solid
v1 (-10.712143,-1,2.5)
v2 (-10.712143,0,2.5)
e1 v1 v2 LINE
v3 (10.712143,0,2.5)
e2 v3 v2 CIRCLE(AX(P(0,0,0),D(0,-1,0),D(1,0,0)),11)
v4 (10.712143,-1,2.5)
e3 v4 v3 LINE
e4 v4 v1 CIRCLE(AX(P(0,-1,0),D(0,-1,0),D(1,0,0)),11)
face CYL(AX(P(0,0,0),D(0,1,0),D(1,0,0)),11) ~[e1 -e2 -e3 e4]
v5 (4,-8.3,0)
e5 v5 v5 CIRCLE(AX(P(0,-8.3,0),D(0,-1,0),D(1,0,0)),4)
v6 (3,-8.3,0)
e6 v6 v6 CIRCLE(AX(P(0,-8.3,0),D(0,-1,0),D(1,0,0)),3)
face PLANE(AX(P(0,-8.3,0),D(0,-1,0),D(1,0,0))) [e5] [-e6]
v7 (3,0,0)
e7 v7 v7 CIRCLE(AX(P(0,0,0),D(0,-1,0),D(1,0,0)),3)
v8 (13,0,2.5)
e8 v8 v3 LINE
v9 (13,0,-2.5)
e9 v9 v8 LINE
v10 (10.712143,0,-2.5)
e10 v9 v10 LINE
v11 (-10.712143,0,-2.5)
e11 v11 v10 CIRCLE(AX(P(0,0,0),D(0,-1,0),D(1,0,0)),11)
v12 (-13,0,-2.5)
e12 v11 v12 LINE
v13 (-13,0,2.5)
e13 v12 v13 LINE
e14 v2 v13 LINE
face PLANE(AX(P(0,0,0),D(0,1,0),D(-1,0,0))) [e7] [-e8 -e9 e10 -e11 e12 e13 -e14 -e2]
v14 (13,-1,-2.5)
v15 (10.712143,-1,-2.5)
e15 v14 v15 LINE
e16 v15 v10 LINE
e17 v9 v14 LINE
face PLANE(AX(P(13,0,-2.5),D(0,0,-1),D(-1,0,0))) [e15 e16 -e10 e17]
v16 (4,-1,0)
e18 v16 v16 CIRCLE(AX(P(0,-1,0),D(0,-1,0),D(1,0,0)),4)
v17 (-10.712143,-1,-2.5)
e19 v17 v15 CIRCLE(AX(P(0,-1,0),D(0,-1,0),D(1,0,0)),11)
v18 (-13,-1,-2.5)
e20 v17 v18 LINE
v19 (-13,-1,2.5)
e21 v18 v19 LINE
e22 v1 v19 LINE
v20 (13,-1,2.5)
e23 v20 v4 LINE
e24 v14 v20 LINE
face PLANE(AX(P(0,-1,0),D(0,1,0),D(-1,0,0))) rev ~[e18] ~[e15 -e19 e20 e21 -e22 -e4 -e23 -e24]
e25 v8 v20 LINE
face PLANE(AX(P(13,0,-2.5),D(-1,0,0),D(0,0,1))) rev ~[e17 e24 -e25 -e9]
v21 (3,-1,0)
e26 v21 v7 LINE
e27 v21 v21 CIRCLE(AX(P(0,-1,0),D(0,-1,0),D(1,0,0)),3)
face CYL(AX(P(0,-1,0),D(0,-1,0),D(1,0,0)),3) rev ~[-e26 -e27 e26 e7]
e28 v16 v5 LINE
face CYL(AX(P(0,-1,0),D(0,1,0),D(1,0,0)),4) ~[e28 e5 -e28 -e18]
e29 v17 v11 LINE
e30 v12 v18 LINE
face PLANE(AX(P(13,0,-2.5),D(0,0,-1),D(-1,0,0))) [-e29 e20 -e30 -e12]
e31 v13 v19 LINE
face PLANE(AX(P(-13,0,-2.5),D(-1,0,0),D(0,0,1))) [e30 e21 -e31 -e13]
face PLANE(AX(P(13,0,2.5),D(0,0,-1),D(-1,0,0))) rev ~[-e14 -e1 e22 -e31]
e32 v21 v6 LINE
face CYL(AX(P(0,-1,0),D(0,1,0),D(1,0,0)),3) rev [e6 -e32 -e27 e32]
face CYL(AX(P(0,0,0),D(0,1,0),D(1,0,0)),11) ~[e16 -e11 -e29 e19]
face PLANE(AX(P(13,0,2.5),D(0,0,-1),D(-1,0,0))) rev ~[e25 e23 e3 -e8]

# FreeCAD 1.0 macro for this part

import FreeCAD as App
import Part
import Sketcher
Q = App.Units.Quantity


def add_polygon(sketch, points):
    """Adds a closed chain of lines whose ends are joined by coincident constraints."""
    first, n = sketch.GeometryCount, len(points)
    for a, b in zip(points, points[1:] + points[:1]):
        sketch.addGeometry(Part.LineSegment(App.Vector(*a, 0), App.Vector(*b, 0)), False)
    for i in range(n):
        sketch.addConstraint(Sketcher.Constraint("Coincident", first + i, 2, first + (i + 1) % n, 1))

doc = App.newDocument("Part")
body = doc.addObject("PartDesign::Body", "Body")

# Sketch on XZ plane
sketch1 = doc.addObject("Sketcher::SketchObject", "Sketch")
body.addObject(sketch1)
sketch1.AttachmentSupport = (doc.XZ_Plane, [""])
sketch1.MapMode = "FlatFace"
sketch1.addGeometry(Part.Circle(App.Vector(0, 0, 0), App.Vector(0, 0, 1), 11), False)
sketch1.addConstraint([
    Sketcher.Constraint("Coincident", 0, 3, -1, 1),
    Sketcher.Constraint("Diameter", 0, Q("22 mm")),
])
pad1 = doc.addObject("PartDesign::Pad", "Pad")
body.addObject(pad1)
pad1.Profile = sketch1
pad1.Length = 1

# Sketch on XZ plane
sketch2 = doc.addObject("Sketcher::SketchObject", "Sketch001")
body.addObject(sketch2)
sketch2.AttachmentSupport = (doc.XZ_Plane, [""])
sketch2.MapMode = "FlatFace"
add_polygon(sketch2, [(13, 2.5), (13, -2.5), (-13, -2.5), (-13, 2.5)])  # lines 0-3
sketch2.addConstraint([
    Sketcher.Constraint("Vertical", 0),
    Sketcher.Constraint("Horizontal", 1),
    Sketcher.Constraint("Vertical", 2),
    Sketcher.Constraint("Horizontal", 3),
    Sketcher.Constraint("Symmetric", 0, 2, 2, 2, -1, 1),
    Sketcher.Constraint("DistanceX", 1, 2, 1, 1, Q("26 mm")),
    Sketcher.Constraint("DistanceY", 0, 2, 0, 1, Q("5 mm")),
])
pad2 = doc.addObject("PartDesign::Pad", "Pad001")
body.addObject(pad2)
pad2.Profile = sketch2
pad2.Length = 1

# Sketch on XZ plane
sketch3 = doc.addObject("Sketcher::SketchObject", "Sketch002")
body.addObject(sketch3)
sketch3.AttachmentSupport = (doc.XZ_Plane, [""])
sketch3.MapMode = "FlatFace"
sketch3.AttachmentOffset = App.Placement(App.Vector(0, 0, 1), App.Rotation())
sketch3.addGeometry([
    Part.Circle(App.Vector(0, 0, 0), App.Vector(0, 0, 1), 4),
    Part.Circle(App.Vector(0, 0, 0), App.Vector(0, 0, 1), 3),
], False)
sketch3.addConstraint([
    Sketcher.Constraint("Coincident", 0, 3, -1, 1),
    Sketcher.Constraint("Coincident", 1, 3, -1, 1),
    Sketcher.Constraint("Diameter", 0, Q("8 mm")),
    Sketcher.Constraint("Diameter", 1, Q("6 mm")),
])
pad3 = doc.addObject("PartDesign::Pad", "Pad002")
body.addObject(pad3)
pad3.Profile = sketch3
pad3.Length = 7.3

# Sketch on XZ plane
sketch4 = doc.addObject("Sketcher::SketchObject", "Sketch003")
body.addObject(sketch4)
sketch4.AttachmentSupport = (doc.XZ_Plane, [""])
sketch4.MapMode = "FlatFace"
sketch4.AttachmentOffset = App.Placement(App.Vector(0, 0, 1), App.Rotation())
sketch4.addGeometry(Part.Circle(App.Vector(0, 0, 0), App.Vector(0, 0, 1), 3), False)
sketch4.addConstraint([
    Sketcher.Constraint("Coincident", 0, 3, -1, 1),
    Sketcher.Constraint("Diameter", 0, Q("6 mm")),
])
pocket1 = doc.addObject("PartDesign::Pocket", "Pocket")
body.addObject(pocket1)
pocket1.Profile = sketch4
pocket1.Type = "ThroughAll"
pocket1.Midplane = True

doc.recompute()
